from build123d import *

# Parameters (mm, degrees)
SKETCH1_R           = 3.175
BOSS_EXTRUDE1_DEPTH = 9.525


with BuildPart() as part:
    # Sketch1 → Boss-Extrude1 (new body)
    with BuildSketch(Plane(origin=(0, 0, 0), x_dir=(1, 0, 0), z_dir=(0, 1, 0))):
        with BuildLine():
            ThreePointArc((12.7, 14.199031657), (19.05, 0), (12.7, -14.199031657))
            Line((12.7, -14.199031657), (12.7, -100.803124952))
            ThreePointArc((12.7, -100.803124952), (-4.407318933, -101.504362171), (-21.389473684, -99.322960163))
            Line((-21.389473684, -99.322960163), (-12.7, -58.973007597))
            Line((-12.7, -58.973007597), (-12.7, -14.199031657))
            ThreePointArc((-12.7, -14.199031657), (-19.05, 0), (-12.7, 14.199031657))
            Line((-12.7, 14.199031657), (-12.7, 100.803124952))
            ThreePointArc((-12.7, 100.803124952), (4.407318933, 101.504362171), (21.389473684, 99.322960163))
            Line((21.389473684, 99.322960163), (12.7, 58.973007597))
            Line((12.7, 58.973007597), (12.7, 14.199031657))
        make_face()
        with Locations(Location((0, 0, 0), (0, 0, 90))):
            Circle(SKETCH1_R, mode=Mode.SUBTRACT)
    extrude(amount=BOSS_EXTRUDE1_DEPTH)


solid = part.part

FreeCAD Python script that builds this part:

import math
import FreeCAD as App
import Part
import Sketcher

V = App.Vector
Q = App.Units.Quantity

doc = App.newDocument("Part")
params = doc.addObject("Spreadsheet::Sheet", "Params")
for row, (alias, value) in enumerate([
    ("sketch1_radius", "4 in"),
    ("sketch1_diameter", "0.25 in"),
    ("sketch1_radius2", "0.75 in"),
    ("sketch1_length", "1.625 in"),
    ("pad1_length", "0.375 in"),
], start=1):
    params.set(f"A{row}", alias)
    params.set(f"B{row}", "=" + value)
    params.setAlias(f"B{row}", alias)

body = doc.addObject("PartDesign::Body", "Body")

# Sketch on XZ plane
sketch1 = body.newObject("Sketcher::SketchObject", "Sketch")
sketch1.AttachmentSupport = (doc.getObject("XZ_Plane"), [""])
sketch1.MapMode = "FlatFace"
sketch1.addGeometry([
    Part.ArcOfCircle(Part.Circle(V(0, 0, 0), V(0, 0, 1), 19.1), math.radians(-48), math.radians(48)),  # 0
    Part.LineSegment(V(12.7, -14.2, 0), V(12.7, -59, 0)),  # 1
    Part.LineSegment(V(12.7, -59, 0), V(21.4, -99.3, 0)),  # 2
    Part.ArcOfCircle(Part.Circle(V(0, 0, 0), V(0, 0, 1), 101.6), math.radians(-97.18), math.radians(-77.85)),  # 3
    Part.LineSegment(V(-12.7, -100.8, 0), V(-12.7, -14.2, 0)),  # 4
    Part.ArcOfCircle(Part.Circle(V(0, 0, 0), V(0, 0, 1), 19.1), math.radians(132), math.radians(228)),  # 5
    Part.LineSegment(V(-12.7, 14.2, 0), V(-12.7, 59, 0)),  # 6
    Part.LineSegment(V(-12.7, 59, 0), V(-21.4, 99.3, 0)),  # 7
    Part.ArcOfCircle(Part.Circle(V(0, 0, 0), V(0, 0, 1), 101.6), math.radians(82.82), math.radians(102.15)),  # 8
    Part.LineSegment(V(12.7, 100.8, 0), V(12.7, 14.2, 0)),  # 9
    Part.Circle(V(0, 0, 0), V(0, 0, 1), 3.2),  # 10
], False)
sketch1.addConstraint([
    Sketcher.Constraint("Coincident", 0, 1, 1, 1),
    Sketcher.Constraint("Coincident", 1, 2, 2, 1),
    Sketcher.Constraint("Coincident", 2, 2, 3, 2),
    Sketcher.Constraint("Coincident", 3, 1, 4, 1),
    Sketcher.Constraint("Coincident", 4, 2, 5, 2),
    Sketcher.Constraint("Coincident", 5, 1, 6, 1),
    Sketcher.Constraint("Coincident", 6, 2, 7, 1),
    Sketcher.Constraint("Coincident", 7, 2, 8, 2),
    Sketcher.Constraint("Coincident", 8, 1, 9, 1),
    Sketcher.Constraint("Coincident", 9, 2, 0, 2),
    Sketcher.Constraint("Vertical", 1),
    Sketcher.Constraint("Vertical", 4),
    Sketcher.Constraint("Vertical", 6),
    Sketcher.Constraint("Vertical", 9),
    Sketcher.Constraint("Coincident", 0, 3, -1, 1),
    Sketcher.Constraint("Coincident", 3, 3, -1, 1),
    Sketcher.Constraint("Coincident", 5, 3, -1, 1),
    Sketcher.Constraint("Coincident", 8, 3, -1, 1),
    Sketcher.Constraint("Coincident", 10, 3, -1, 1),
    Sketcher.Constraint("Equal", 0, 5),
    Sketcher.Constraint("Equal", 3, 8),
    Sketcher.Constraint("Symmetric", 1, 2, 6, 2, -1, 1),
    Sketcher.Constraint("Parallel", 2, 7),
    Sketcher.Constraint("Horizontal", 0, 1, 4, 2),
    Sketcher.Constraint("Horizontal", 5, 1, 9, 2),
    Sketcher.Constraint("Radius", 3, Q("4 in")),
    Sketcher.Constraint("Diameter", 10, Q("0.25 in")),
    Sketcher.Constraint("Radius", 0, Q("0.75 in")),
    Sketcher.Constraint("DistanceX", 3, 1, 1, 2, Q("1 in")),
    Sketcher.Constraint("Distance", 2, Q("1.625 in")),
    Sketcher.Constraint("DistanceY", 2, 2, -1, 1, 99.32296),
])
sketch1.setExpression("Constraints[25]", "Params.sketch1_radius")
sketch1.setExpression("Constraints[26]", "Params.sketch1_diameter")
sketch1.setExpression("Constraints[27]", "Params.sketch1_radius2")
sketch1.setExpression("Constraints[29]", "Params.sketch1_length")
pad1 = body.newObject("PartDesign::Pad", "Pad")
pad1.Profile = sketch1
pad1.setExpression("Length", "Params.pad1_length")
pad1.Reversed = True

doc.recompute()
